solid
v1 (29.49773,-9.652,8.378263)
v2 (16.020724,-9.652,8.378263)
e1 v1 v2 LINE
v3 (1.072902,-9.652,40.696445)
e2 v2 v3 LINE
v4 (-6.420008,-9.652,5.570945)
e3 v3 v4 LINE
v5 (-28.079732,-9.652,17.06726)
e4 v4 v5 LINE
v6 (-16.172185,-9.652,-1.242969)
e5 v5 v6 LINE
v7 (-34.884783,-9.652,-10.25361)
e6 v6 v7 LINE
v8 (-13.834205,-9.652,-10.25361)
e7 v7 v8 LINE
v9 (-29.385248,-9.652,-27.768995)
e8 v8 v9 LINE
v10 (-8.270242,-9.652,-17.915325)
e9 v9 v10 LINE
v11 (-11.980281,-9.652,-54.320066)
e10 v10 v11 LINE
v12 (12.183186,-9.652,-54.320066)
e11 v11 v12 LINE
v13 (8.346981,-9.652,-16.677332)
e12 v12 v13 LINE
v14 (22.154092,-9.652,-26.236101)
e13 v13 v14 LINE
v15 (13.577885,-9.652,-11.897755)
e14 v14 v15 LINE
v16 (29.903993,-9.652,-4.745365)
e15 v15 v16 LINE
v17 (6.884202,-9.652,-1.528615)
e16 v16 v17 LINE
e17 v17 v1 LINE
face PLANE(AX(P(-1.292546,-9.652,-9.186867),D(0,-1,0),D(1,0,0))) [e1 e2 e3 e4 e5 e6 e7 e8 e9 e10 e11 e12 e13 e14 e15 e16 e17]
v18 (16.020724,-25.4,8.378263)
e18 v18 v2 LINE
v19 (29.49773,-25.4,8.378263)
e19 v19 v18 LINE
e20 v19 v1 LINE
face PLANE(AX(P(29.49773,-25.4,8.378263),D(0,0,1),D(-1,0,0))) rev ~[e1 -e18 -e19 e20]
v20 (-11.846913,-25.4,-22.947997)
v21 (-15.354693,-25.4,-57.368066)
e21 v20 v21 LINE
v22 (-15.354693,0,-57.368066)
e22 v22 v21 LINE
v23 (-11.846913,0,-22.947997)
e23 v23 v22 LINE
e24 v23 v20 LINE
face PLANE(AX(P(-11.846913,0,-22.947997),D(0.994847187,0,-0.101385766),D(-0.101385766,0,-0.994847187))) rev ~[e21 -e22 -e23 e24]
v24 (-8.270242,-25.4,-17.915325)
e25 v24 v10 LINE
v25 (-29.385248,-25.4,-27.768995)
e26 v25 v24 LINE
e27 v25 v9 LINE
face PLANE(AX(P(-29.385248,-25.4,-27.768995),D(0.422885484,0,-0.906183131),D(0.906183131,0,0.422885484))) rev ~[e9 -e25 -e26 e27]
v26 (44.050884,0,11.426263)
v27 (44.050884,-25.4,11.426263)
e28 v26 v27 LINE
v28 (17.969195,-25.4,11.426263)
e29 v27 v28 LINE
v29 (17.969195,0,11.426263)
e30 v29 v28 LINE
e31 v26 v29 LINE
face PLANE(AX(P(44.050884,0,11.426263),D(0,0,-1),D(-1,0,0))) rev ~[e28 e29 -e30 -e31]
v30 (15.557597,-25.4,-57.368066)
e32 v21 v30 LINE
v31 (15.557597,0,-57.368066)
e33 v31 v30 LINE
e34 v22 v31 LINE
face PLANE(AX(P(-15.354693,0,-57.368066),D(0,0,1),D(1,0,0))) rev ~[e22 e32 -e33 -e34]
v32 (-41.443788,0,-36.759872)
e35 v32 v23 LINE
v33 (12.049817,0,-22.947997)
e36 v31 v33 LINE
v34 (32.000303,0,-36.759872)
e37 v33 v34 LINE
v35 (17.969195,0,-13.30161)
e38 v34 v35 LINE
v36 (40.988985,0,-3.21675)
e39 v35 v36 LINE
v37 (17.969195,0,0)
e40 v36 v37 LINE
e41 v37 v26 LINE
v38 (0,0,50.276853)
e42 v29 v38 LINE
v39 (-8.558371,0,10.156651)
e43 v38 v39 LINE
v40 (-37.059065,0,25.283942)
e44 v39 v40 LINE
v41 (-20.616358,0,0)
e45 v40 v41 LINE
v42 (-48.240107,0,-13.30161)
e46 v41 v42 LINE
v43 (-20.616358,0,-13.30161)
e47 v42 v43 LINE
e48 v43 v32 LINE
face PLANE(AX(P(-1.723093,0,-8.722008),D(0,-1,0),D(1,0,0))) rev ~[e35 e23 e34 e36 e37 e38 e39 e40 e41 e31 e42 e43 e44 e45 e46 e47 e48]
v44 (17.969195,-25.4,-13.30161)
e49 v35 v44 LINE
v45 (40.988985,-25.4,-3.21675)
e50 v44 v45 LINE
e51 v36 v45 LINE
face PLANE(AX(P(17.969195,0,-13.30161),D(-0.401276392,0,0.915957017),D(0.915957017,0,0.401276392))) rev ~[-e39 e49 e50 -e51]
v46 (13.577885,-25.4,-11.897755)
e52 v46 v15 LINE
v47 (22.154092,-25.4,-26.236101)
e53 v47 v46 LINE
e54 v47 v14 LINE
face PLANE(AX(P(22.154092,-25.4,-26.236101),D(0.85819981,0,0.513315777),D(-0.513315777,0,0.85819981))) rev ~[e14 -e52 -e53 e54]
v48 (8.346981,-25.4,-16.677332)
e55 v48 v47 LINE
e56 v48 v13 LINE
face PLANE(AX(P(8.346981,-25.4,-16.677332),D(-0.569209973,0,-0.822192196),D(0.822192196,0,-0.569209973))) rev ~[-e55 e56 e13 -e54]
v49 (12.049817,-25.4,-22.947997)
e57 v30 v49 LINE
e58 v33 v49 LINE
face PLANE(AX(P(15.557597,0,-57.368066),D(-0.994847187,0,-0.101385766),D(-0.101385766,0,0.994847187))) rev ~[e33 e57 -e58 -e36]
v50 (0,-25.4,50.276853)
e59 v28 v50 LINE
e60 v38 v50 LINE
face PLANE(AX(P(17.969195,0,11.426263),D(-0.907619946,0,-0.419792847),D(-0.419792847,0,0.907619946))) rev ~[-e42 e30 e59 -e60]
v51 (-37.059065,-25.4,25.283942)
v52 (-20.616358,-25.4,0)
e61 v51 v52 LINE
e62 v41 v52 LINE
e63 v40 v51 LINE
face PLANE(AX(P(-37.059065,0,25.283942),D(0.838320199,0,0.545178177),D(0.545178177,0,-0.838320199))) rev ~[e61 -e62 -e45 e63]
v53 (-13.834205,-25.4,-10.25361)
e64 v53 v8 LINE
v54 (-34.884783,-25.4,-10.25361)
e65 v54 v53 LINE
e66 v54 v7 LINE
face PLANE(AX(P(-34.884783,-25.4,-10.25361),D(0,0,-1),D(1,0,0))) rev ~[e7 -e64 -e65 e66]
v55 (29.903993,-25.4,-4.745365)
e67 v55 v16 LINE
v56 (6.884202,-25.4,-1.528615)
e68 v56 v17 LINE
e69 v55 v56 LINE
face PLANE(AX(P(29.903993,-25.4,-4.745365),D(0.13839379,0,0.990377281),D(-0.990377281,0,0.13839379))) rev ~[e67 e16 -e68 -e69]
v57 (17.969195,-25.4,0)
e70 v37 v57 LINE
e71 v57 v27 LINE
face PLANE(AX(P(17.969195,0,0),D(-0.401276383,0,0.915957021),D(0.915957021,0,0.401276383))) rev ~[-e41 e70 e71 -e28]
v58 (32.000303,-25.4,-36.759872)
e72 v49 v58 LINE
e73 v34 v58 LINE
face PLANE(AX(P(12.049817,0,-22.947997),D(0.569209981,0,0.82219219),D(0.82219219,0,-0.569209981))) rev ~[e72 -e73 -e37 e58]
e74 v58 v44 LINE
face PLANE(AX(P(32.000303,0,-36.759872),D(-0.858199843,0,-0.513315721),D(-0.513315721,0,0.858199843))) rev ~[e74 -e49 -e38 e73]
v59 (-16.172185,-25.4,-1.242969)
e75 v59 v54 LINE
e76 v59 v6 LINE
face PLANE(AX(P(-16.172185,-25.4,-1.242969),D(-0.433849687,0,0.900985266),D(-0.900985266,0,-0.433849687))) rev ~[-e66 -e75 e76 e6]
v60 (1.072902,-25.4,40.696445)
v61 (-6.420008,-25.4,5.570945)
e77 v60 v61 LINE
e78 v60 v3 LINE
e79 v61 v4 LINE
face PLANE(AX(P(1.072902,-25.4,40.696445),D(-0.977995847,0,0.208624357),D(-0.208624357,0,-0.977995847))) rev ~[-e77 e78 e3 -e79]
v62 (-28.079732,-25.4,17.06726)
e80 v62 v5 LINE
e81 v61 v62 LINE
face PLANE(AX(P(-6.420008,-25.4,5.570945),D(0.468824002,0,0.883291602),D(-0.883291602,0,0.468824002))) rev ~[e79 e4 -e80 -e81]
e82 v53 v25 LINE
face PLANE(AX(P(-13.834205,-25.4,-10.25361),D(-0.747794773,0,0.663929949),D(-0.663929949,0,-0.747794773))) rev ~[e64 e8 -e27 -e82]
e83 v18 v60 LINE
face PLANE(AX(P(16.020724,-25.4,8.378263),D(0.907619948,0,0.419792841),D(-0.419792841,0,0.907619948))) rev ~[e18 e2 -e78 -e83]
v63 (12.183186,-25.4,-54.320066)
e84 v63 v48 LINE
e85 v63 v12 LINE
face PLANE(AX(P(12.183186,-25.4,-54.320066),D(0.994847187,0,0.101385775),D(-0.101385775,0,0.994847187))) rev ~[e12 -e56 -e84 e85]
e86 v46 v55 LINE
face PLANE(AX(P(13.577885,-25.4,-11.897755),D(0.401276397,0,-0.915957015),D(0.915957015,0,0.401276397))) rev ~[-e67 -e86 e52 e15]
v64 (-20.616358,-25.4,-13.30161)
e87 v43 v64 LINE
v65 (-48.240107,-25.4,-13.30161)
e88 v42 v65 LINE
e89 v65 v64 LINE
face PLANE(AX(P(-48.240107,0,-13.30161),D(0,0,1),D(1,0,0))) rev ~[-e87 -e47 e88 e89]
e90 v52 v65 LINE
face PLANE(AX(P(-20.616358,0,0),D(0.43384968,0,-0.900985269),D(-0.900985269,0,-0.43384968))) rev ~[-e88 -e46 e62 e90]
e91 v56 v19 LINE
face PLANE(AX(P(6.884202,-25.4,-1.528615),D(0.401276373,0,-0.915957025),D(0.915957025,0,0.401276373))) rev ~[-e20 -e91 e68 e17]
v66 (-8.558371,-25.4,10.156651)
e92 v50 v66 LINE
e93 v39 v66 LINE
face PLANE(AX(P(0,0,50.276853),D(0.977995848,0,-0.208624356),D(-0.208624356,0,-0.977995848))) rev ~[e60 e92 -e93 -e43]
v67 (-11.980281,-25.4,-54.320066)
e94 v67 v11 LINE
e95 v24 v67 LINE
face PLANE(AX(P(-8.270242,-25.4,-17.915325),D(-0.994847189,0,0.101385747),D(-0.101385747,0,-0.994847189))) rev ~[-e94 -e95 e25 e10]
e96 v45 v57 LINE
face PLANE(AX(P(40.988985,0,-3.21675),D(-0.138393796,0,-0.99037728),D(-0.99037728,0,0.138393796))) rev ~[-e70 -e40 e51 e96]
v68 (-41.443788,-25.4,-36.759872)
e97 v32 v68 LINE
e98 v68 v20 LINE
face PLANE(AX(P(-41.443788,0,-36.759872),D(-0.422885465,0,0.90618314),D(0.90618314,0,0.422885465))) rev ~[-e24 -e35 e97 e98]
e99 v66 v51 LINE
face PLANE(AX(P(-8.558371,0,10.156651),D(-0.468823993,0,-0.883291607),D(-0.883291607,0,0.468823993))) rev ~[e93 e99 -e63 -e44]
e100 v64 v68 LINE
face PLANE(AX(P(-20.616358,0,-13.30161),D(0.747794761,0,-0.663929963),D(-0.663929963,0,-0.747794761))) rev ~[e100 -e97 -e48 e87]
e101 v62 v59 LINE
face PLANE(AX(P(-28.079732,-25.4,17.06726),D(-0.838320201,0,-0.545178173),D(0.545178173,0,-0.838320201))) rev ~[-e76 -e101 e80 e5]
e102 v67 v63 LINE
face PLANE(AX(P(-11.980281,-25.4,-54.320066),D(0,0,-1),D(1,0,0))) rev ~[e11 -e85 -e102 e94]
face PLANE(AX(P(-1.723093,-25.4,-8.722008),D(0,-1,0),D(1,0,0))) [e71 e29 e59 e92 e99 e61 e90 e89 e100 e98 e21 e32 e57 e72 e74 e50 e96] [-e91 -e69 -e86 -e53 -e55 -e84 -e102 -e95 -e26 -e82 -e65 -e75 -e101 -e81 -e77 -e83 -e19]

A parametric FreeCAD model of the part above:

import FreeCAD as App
import Part
import Sketcher
from FreeCAD import Vector
Q = App.Units.Quantity


def add_polygon(sketch, points):
    """Adds a closed chain of lines whose ends are joined by coincident constraints."""
    first, n = sketch.GeometryCount, len(points)
    for a, b in zip(points, points[1:] + points[:1]):
        sketch.addGeometry(Part.LineSegment(App.Vector(*a, 0), App.Vector(*b, 0)), False)
    for i in range(n):
        sketch.addConstraint(Sketcher.Constraint("Coincident", first + i, 2, first + (i + 1) % n, 1))

doc = App.newDocument("Part")
body = doc.addObject("PartDesign::Body", "Body")

sketch1 = body.newObject("Sketcher::SketchObject", "Sketch")
sketch1.AttachmentSupport = (doc.getObject("XZ_Plane"), [""])
sketch1.MapMode = "FlatFace"
add_polygon(sketch1, [(17.969195, 11.426263), (0, 50.276853), (-8.558371, 10.156651), (-37.059065, 25.283942), (-20.616358, 0), (-48.240107, -13.30161), (-20.616358, -13.30161), (-41.443788, -36.759872), (-11.846913, -22.947997), (-15.354693, -57.368066), (15.557597, -57.368066), (12.049817, -22.947997), (32.000303, -36.759872), (17.969195, -13.30161), (40.988985, -3.21675), (17.969195, 0), (44.050884, 11.426263)])
sketch1.addConstraint([
    Sketcher.Constraint("Horizontal", 5),
    Sketcher.Constraint("Horizontal", 9),
    Sketcher.Constraint("Horizontal", 16),
    Sketcher.Constraint("PointOnObject", 0, 2, -2),
    Sketcher.Constraint("PointOnObject", 3, 2, -1),
    Sketcher.Constraint("PointOnObject", 14, 2, -1),
    Sketcher.Constraint("Parallel", 13, 15),
    Sketcher.Constraint("Horizontal", 7, 2, 10, 2),
    Sketcher.Constraint("Horizontal", 6, 2, 11, 2),
    Sketcher.Constraint("Horizontal", 5, 2, 12, 2),
    Sketcher.Constraint("Vertical", 3, 2, 5, 2),
    Sketcher.Constraint("Vertical", 12, 2, 14, 2),
    Sketcher.Constraint("Vertical", 14, 2, 16, 2),
    Sketcher.Constraint("Equal", 8, 10),
    Sketcher.Constraint("DistanceY", 8, 2, 5, 2, Q("1.7348998 in")),
    Sketcher.Constraint("DistanceX", 5, 1, 5, 2, Q("27.623749 mm")),
    Sketcher.Constraint("DistanceX", 9, 1, 9, 2, Q("30.91229 mm")),
    Sketcher.Constraint("DistanceX", 16, 2, 16, 1, Q("26.081689 mm")),
    Sketcher.Constraint("DistanceY", 13, 2, 1, 2, Q("13.373401 mm")),
    Sketcher.Constraint("DistanceX", 13, 2, 15, 2, Q("3.061899 mm")),
    Sketcher.Constraint("Distance", 0, Q("42.80491 mm")),
    Sketcher.Constraint("Distance", 2, Q("32.266461 mm")),
    Sketcher.Constraint("Distance", 4, Q("30.65949 mm")),
    Sketcher.Constraint("Distance", 6, Q("31.36992 mm")),
    Sketcher.Constraint("Distance", 7, Q("32.66103 mm")),
    Sketcher.Constraint("Distance", 11, Q("24.264991 mm")),
    Sketcher.Constraint("DistanceX", 1, 2, -1, 1, Q("8.558371 mm")),
    Sketcher.Constraint("DistanceY", -1, 1, 1, 2, Q("10.156651 mm")),
    Sketcher.Constraint("DistanceY", -1, 1, 2, 2, Q("25.283942 mm")),
    Sketcher.Constraint("DistanceX", 3, 2, -1, 1, Q("20.616358 mm")),
    Sketcher.Constraint("DistanceY", 2, 2, 0, 2, Q("24.992911 mm")),
    Sketcher.Constraint("DistanceX", 4, 2, 6, 2, Q("6.796319 mm")),
    Sketcher.Constraint("DistanceX", 8, 2, 7, 2, Q("3.50778 mm")),
    Sketcher.Constraint("DistanceY", 8, 2, 7, 2, Q("34.420069 mm")),
])
pad1 = body.newObject("PartDesign::Pad", "Pad")
pad1.Profile = sketch1
pad1.Length = Q("1 in")

sketch2 = body.newObject("Sketcher::SketchObject", "Sketch001")
sketch2.AttachmentSupport = (doc.getObject("XZ_Plane"), [""])
sketch2.MapMode = "FlatFace"
sketch2.AttachmentOffset = App.Placement(Vector(0, 0, 1 * 25.4), App.Rotation())
add_polygon(sketch2, [(22.154092, -26.236101), (13.577885, -11.897755), (29.903993, -4.745365), (6.884202, -1.528615), (29.49773, 8.378263), (16.020724, 8.378263), (1.072902, 40.696445), (-6.420008, 5.570945), (-28.079732, 17.06726), (-16.172185, -1.242969), (-34.884783, -10.25361), (-13.834205, -10.25361), (-29.385248, -27.768995), (-8.270242, -17.915325), (-11.980281, -54.320066), (12.183186, -54.320066), (8.346981, -16.677332)])
sketch2.addConstraint([
    Sketcher.Constraint("Horizontal", 4),
    Sketcher.Constraint("Horizontal", 10),
    Sketcher.Constraint("Horizontal", 14),
    Sketcher.Constraint("Parallel", 1, 3),
    Sketcher.Constraint("DistanceX", 8, 2, -1, 1, Q("0.6367002 in")),
    Sketcher.Constraint("DistanceX", 12, 2, -1, 1, Q("0.3256001 in")),
    Sketcher.Constraint("DistanceY", 13, 2, 10, 2, Q("1.7348998 in")),
    Sketcher.Constraint("Distance", 1, Q("17.824098 mm")),
    Sketcher.Constraint("Distance", 7, Q("24.521601 mm")),
    Sketcher.Constraint("Distance", 13, Q("36.593299 mm")),
    Sketcher.Constraint("DistanceY", 16, 2, -1, 1, Q("26.236101 mm")),
    Sketcher.Constraint("DistanceX", 5, 2, 2, 2, Q("5.8113 mm")),
    Sketcher.Constraint("DistanceY", 0, 2, 5, 2, Q("52.5942 mm")),
    Sketcher.Constraint("DistanceY", 0, 2, 6, 2, Q("17.4687 mm")),
    Sketcher.Constraint("DistanceX", 9, 2, 8, 2, Q("18.712598 mm")),
    Sketcher.Constraint("DistanceX", 14, 2, 0, 2, Q("1.394699 mm")),
    Sketcher.Constraint("DistanceX", 16, 2, 1, 2, Q("7.749901 mm")),
    Sketcher.Constraint("Distance", 0, Q("16.707468 mm")),
    Sketcher.Constraint("Distance", 8, Q("21.84157 mm")),
    Sketcher.Constraint("Distance", 9, Q("20.769039 mm")),
    Sketcher.Constraint("DistanceX", 4, 2, 4, 1, Q("13.477006 mm")),
    Sketcher.Constraint("DistanceX", 10, 1, 10, 2, Q("21.050578 mm")),
    Sketcher.Constraint("DistanceX", 14, 1, 14, 2, Q("24.163467 mm")),
    Sketcher.Constraint("DistanceX", -1, 1, 3, 2, Q("29.49773 mm")),
    Sketcher.Constraint("DistanceX", 7, 2, -1, 1, Q("28.079732 mm")),
    Sketcher.Constraint("DistanceY", -1, 1, 7, 2, Q("17.06726 mm")),
    Sketcher.Constraint("DistanceX", 11, 2, -1, 1, Q("29.385248 mm")),
    Sketcher.Constraint("DistanceX", 13, 2, -1, 1, Q("11.980281 mm")),
    Sketcher.Constraint("DistanceX", -1, 1, 15, 2, Q("8.346981 mm")),
    Sketcher.Constraint("DistanceY", 15, 2, -1, 1, Q("16.677332 mm")),
    Sketcher.Constraint("DistanceX", -1, 1, 16, 2, Q("22.154092 mm")),
    Sketcher.Constraint("DistanceY", 0, 2, 2, 2, Q("10.36914 mm")),
    Sketcher.Constraint("DistanceX", 2, 2, 1, 2, Q("23.019791 mm")),
    Sketcher.Constraint("DistanceY", 11, 2, 6, 2, Q("33.33994 mm")),
])
pocket1 = body.newObject("PartDesign::Pocket", "Pocket")
pocket1.Profile = sketch2
pocket1.Length = Q("0.62 in")

doc.recompute()
